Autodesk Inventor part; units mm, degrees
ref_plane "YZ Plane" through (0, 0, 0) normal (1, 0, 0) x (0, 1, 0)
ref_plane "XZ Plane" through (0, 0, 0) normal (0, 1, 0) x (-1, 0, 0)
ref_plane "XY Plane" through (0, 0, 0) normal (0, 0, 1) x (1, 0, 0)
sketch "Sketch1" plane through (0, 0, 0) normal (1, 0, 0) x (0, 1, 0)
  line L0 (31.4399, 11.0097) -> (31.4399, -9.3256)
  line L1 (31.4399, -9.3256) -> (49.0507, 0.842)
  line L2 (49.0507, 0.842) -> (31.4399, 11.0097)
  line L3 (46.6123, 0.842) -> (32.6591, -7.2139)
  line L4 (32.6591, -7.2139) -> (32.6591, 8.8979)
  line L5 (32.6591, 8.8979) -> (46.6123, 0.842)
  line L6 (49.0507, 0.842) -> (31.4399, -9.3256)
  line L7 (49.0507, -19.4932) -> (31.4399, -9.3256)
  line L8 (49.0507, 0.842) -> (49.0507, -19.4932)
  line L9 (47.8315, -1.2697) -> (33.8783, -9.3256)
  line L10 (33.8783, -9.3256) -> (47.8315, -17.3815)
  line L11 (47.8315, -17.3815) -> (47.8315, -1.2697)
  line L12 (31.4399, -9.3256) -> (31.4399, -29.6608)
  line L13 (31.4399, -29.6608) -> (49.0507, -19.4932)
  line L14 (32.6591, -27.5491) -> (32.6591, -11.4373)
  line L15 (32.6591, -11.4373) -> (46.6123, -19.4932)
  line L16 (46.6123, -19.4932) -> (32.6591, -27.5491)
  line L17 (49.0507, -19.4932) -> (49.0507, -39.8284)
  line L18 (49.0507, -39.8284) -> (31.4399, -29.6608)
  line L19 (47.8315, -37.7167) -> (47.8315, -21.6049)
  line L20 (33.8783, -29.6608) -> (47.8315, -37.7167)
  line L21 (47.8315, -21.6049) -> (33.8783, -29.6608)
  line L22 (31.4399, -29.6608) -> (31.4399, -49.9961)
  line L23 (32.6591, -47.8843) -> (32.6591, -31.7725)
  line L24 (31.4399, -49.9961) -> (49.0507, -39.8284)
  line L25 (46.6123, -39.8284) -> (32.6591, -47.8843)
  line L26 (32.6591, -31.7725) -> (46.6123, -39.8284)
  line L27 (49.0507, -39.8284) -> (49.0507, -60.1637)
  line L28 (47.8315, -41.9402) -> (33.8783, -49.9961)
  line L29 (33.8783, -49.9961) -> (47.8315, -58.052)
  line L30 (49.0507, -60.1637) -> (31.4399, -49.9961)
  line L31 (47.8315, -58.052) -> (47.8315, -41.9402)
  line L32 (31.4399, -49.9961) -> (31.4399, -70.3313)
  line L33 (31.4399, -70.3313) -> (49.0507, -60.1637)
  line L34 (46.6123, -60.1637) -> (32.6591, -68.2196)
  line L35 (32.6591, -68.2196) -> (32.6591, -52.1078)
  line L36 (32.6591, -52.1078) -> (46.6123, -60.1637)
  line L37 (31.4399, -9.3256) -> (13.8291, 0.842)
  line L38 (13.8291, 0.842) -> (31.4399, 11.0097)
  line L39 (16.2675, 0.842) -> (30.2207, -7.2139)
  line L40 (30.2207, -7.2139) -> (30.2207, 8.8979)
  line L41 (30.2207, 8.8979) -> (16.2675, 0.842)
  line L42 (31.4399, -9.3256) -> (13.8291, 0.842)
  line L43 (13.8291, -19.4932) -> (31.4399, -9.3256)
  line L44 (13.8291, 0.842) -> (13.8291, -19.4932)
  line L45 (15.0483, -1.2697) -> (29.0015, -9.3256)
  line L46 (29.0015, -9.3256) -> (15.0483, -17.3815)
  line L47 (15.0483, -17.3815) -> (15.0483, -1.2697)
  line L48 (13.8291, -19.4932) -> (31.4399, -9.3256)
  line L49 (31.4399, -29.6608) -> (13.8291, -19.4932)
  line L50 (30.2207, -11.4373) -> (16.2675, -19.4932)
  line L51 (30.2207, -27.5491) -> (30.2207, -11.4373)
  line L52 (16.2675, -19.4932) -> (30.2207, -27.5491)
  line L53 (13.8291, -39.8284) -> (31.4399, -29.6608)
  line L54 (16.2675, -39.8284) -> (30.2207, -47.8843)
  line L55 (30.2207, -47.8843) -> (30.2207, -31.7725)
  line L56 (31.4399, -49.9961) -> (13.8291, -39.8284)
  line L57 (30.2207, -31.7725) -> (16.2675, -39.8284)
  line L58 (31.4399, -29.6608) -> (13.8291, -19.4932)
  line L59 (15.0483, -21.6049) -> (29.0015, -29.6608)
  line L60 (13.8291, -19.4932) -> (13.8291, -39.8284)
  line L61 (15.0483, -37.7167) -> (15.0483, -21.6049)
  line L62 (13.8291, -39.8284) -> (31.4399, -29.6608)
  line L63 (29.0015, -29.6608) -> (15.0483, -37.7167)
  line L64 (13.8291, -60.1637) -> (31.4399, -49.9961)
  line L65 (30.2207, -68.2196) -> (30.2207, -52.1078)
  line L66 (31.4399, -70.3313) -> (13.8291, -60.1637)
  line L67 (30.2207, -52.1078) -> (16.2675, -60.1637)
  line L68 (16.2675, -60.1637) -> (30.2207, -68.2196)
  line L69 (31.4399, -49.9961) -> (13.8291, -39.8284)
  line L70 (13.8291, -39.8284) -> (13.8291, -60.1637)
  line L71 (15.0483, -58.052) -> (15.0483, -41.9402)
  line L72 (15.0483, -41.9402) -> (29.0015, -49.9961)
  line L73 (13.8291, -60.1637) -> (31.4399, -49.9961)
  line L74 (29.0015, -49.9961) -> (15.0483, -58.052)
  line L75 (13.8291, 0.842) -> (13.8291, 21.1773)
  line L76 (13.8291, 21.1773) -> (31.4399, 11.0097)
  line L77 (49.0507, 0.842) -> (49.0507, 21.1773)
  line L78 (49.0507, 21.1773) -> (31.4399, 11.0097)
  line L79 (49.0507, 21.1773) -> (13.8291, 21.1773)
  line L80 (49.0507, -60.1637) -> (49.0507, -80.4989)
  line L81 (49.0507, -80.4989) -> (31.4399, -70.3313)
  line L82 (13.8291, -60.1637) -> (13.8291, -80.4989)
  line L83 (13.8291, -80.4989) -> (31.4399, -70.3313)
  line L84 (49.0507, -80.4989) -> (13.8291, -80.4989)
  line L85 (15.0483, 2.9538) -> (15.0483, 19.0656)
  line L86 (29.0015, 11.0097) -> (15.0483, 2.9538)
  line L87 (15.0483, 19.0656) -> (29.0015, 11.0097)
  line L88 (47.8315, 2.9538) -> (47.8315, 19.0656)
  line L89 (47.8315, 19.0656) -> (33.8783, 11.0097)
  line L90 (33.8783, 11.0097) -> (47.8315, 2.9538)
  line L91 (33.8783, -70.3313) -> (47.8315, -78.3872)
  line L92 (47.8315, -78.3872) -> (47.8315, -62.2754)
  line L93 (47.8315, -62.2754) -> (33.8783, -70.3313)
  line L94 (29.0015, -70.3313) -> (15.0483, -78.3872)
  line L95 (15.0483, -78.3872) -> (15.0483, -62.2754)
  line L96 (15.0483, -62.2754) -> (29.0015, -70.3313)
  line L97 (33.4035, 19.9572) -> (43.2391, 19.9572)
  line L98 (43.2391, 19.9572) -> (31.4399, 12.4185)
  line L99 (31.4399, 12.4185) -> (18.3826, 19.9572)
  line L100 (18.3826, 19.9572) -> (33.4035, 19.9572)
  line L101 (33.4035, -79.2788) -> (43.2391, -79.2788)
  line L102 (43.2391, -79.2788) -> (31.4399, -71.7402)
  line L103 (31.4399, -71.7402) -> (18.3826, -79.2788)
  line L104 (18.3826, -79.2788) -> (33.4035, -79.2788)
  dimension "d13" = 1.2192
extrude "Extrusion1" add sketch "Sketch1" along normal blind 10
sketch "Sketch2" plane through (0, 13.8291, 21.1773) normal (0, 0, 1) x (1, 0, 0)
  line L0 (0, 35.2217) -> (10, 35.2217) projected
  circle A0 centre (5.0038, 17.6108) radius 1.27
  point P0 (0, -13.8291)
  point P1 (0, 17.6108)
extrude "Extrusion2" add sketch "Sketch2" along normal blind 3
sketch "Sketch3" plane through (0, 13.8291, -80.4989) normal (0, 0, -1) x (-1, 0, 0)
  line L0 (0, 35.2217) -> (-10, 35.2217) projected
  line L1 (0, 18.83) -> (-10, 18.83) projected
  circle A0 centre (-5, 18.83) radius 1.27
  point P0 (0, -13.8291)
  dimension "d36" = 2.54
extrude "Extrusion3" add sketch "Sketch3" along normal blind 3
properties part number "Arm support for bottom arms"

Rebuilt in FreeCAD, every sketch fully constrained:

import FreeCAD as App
import Part
import Sketcher
from FreeCAD import Vector
Q = App.Units.Quantity

doc = App.newDocument("Part")
body = doc.addObject("PartDesign::Body", "Body")

sketch1 = doc.addObject("Sketcher::SketchObject", "Sketch")
body.addObject(sketch1)
sketch1.AttachmentSupport = (doc.YZ_Plane, [""])
sketch1.MapMode = "FlatFace"
sketch1.addGeometry(Part.LineSegment(Vector(49.0507, 21.1773, 0), Vector(13.8291, 21.1773, 0)), False)
sketch1.addGeometry(Part.LineSegment(Vector(13.8291, 21.1773, 0), Vector(13.8291, -80.4989, 0)), False)
sketch1.addGeometry(Part.LineSegment(Vector(13.8291, -80.4989, 0), Vector(49.0507, -80.4989, 0)), False)
sketch1.addGeometry(Part.LineSegment(Vector(49.0507, -80.4989, 0), Vector(49.0507, 21.1773, 0)), False)
sketch1.addGeometry(Part.LineSegment(Vector(32.6591, 8.8979, 0), Vector(46.6123, 0.842, 0)), False)
sketch1.addGeometry(Part.LineSegment(Vector(46.6123, 0.842, 0), Vector(32.6591, -7.2139, 0)), False)
sketch1.addGeometry(Part.LineSegment(Vector(32.6591, -7.2139, 0), Vector(32.6591, 8.8979, 0)), False)
sketch1.addGeometry(Part.LineSegment(Vector(47.8315, 2.9538, 0), Vector(33.8783, 11.0097, 0)), False)
sketch1.addGeometry(Part.LineSegment(Vector(33.8783, 11.0097, 0), Vector(47.8315, 19.0656, 0)), False)
sketch1.addGeometry(Part.LineSegment(Vector(47.8315, 19.0656, 0), Vector(47.8315, 2.9538, 0)), False)
sketch1.addGeometry(Part.LineSegment(Vector(47.8315, -1.2697, 0), Vector(47.8315, -17.3815, 0)), False)
sketch1.addGeometry(Part.LineSegment(Vector(47.8315, -17.3815, 0), Vector(33.8783, -9.3256, 0)), False)
sketch1.addGeometry(Part.LineSegment(Vector(33.8783, -9.3256, 0), Vector(47.8315, -1.2697, 0)), False)
sketch1.addGeometry(Part.LineSegment(Vector(16.2675, 0.842, 0), Vector(30.2207, 8.8979, 0)), False)
sketch1.addGeometry(Part.LineSegment(Vector(30.2207, 8.8979, 0), Vector(30.2207, -7.2139, 0)), False)
sketch1.addGeometry(Part.LineSegment(Vector(30.2207, -7.2139, 0), Vector(16.2675, 0.842, 0)), False)
sketch1.addGeometry(Part.LineSegment(Vector(43.2391, 19.9572, 0), Vector(31.4399, 12.4185, 0)), False)
sketch1.addGeometry(Part.LineSegment(Vector(31.4399, 12.4185, 0), Vector(18.3826, 19.9572, 0)), False)
sketch1.addGeometry(Part.LineSegment(Vector(18.3826, 19.9572, 0), Vector(43.2391, 19.9572, 0)), False)
sketch1.addGeometry(Part.LineSegment(Vector(32.6591, -27.5491, 0), Vector(32.6591, -11.4373, 0)), False)
sketch1.addGeometry(Part.LineSegment(Vector(32.6591, -11.4373, 0), Vector(46.6123, -19.4932, 0)), False)
sketch1.addGeometry(Part.LineSegment(Vector(46.6123, -19.4932, 0), Vector(32.6591, -27.5491, 0)), False)
sketch1.addGeometry(Part.LineSegment(Vector(15.0483, -1.2697, 0), Vector(29.0015, -9.3256, 0)), False)
sketch1.addGeometry(Part.LineSegment(Vector(29.0015, -9.3256, 0), Vector(15.0483, -17.3815, 0)), False)
sketch1.addGeometry(Part.LineSegment(Vector(15.0483, -17.3815, 0), Vector(15.0483, -1.2697, 0)), False)
sketch1.addGeometry(Part.LineSegment(Vector(15.0483, 2.9538, 0), Vector(15.0483, 19.0656, 0)), False)
sketch1.addGeometry(Part.LineSegment(Vector(15.0483, 19.0656, 0), Vector(29.0015, 11.0097, 0)), False)
sketch1.addGeometry(Part.LineSegment(Vector(29.0015, 11.0097, 0), Vector(15.0483, 2.9538, 0)), False)
sketch1.addGeometry(Part.LineSegment(Vector(47.8315, -37.7167, 0), Vector(33.8783, -29.6608, 0)), False)
sketch1.addGeometry(Part.LineSegment(Vector(33.8783, -29.6608, 0), Vector(47.8315, -21.6049, 0)), False)
sketch1.addGeometry(Part.LineSegment(Vector(47.8315, -21.6049, 0), Vector(47.8315, -37.7167, 0)), False)
sketch1.addGeometry(Part.LineSegment(Vector(30.2207, -11.4373, 0), Vector(30.2207, -27.5491, 0)), False)
sketch1.addGeometry(Part.LineSegment(Vector(30.2207, -27.5491, 0), Vector(16.2675, -19.4932, 0)), False)
sketch1.addGeometry(Part.LineSegment(Vector(16.2675, -19.4932, 0), Vector(30.2207, -11.4373, 0)), False)
sketch1.addGeometry(Part.LineSegment(Vector(32.6591, -47.8843, 0), Vector(32.6591, -31.7725, 0)), False)
sketch1.addGeometry(Part.LineSegment(Vector(32.6591, -31.7725, 0), Vector(46.6123, -39.8284, 0)), False)
sketch1.addGeometry(Part.LineSegment(Vector(46.6123, -39.8284, 0), Vector(32.6591, -47.8843, 0)), False)
sketch1.addGeometry(Part.LineSegment(Vector(15.0483, -21.6049, 0), Vector(29.0015, -29.6608, 0)), False)
sketch1.addGeometry(Part.LineSegment(Vector(29.0015, -29.6608, 0), Vector(15.0483, -37.7167, 0)), False)
sketch1.addGeometry(Part.LineSegment(Vector(15.0483, -37.7167, 0), Vector(15.0483, -21.6049, 0)), False)
sketch1.addGeometry(Part.LineSegment(Vector(47.8315, -41.9402, 0), Vector(47.8315, -58.052, 0)), False)
sketch1.addGeometry(Part.LineSegment(Vector(47.8315, -58.052, 0), Vector(33.8783, -49.9961, 0)), False)
sketch1.addGeometry(Part.LineSegment(Vector(33.8783, -49.9961, 0), Vector(47.8315, -41.9402, 0)), False)
sketch1.addGeometry(Part.LineSegment(Vector(16.2675, -39.8284, 0), Vector(30.2207, -31.7725, 0)), False)
sketch1.addGeometry(Part.LineSegment(Vector(30.2207, -31.7725, 0), Vector(30.2207, -47.8843, 0)), False)
sketch1.addGeometry(Part.LineSegment(Vector(30.2207, -47.8843, 0), Vector(16.2675, -39.8284, 0)), False)
sketch1.addGeometry(Part.LineSegment(Vector(46.6123, -60.1637, 0), Vector(32.6591, -68.2196, 0)), False)
sketch1.addGeometry(Part.LineSegment(Vector(32.6591, -68.2196, 0), Vector(32.6591, -52.1078, 0)), False)
sketch1.addGeometry(Part.LineSegment(Vector(32.6591, -52.1078, 0), Vector(46.6123, -60.1637, 0)), False)
sketch1.addGeometry(Part.LineSegment(Vector(15.0483, -58.052, 0), Vector(15.0483, -41.9402, 0)), False)
sketch1.addGeometry(Part.LineSegment(Vector(15.0483, -41.9402, 0), Vector(29.0015, -49.9961, 0)), False)
sketch1.addGeometry(Part.LineSegment(Vector(29.0015, -49.9961, 0), Vector(15.0483, -58.052, 0)), False)
sketch1.addGeometry(Part.LineSegment(Vector(33.8783, -70.3313, 0), Vector(47.8315, -62.2754, 0)), False)
sketch1.addGeometry(Part.LineSegment(Vector(47.8315, -62.2754, 0), Vector(47.8315, -78.3872, 0)), False)
sketch1.addGeometry(Part.LineSegment(Vector(47.8315, -78.3872, 0), Vector(33.8783, -70.3313, 0)), False)
sketch1.addGeometry(Part.LineSegment(Vector(30.2207, -68.2196, 0), Vector(16.2675, -60.1637, 0)), False)
sketch1.addGeometry(Part.LineSegment(Vector(16.2675, -60.1637, 0), Vector(30.2207, -52.1078, 0)), False)
sketch1.addGeometry(Part.LineSegment(Vector(30.2207, -52.1078, 0), Vector(30.2207, -68.2196, 0)), False)
sketch1.addGeometry(Part.LineSegment(Vector(18.3826, -79.2788, 0), Vector(31.4399, -71.7402, 0)), False)
sketch1.addGeometry(Part.LineSegment(Vector(31.4399, -71.7402, 0), Vector(43.2391, -79.2788, 0)), False)
sketch1.addGeometry(Part.LineSegment(Vector(43.2391, -79.2788, 0), Vector(18.3826, -79.2788, 0)), False)
sketch1.addGeometry(Part.LineSegment(Vector(15.0483, -78.3872, 0), Vector(15.0483, -62.2754, 0)), False)
sketch1.addGeometry(Part.LineSegment(Vector(15.0483, -62.2754, 0), Vector(29.0015, -70.3313, 0)), False)
sketch1.addGeometry(Part.LineSegment(Vector(29.0015, -70.3313, 0), Vector(15.0483, -78.3872, 0)), False)
sketch1.addConstraint(Sketcher.Constraint("Coincident", 0, 2, 1, 1))
sketch1.addConstraint(Sketcher.Constraint("Coincident", 1, 2, 2, 1))
sketch1.addConstraint(Sketcher.Constraint("Coincident", 2, 2, 3, 1))
sketch1.addConstraint(Sketcher.Constraint("Coincident", 3, 2, 0, 1))
sketch1.addConstraint(Sketcher.Constraint("Coincident", 4, 2, 5, 1))
sketch1.addConstraint(Sketcher.Constraint("Coincident", 5, 2, 6, 1))
sketch1.addConstraint(Sketcher.Constraint("Coincident", 6, 2, 4, 1))
sketch1.addConstraint(Sketcher.Constraint("Coincident", 7, 2, 8, 1))
sketch1.addConstraint(Sketcher.Constraint("Coincident", 8, 2, 9, 1))
sketch1.addConstraint(Sketcher.Constraint("Coincident", 9, 2, 7, 1))
sketch1.addConstraint(Sketcher.Constraint("Coincident", 10, 2, 11, 1))
sketch1.addConstraint(Sketcher.Constraint("Coincident", 11, 2, 12, 1))
sketch1.addConstraint(Sketcher.Constraint("Coincident", 12, 2, 10, 1))
sketch1.addConstraint(Sketcher.Constraint("Coincident", 13, 2, 14, 1))
sketch1.addConstraint(Sketcher.Constraint("Coincident", 14, 2, 15, 1))
sketch1.addConstraint(Sketcher.Constraint("Coincident", 15, 2, 13, 1))
sketch1.addConstraint(Sketcher.Constraint("Coincident", 16, 2, 17, 1))
sketch1.addConstraint(Sketcher.Constraint("Coincident", 17, 2, 18, 1))
sketch1.addConstraint(Sketcher.Constraint("Coincident", 18, 2, 16, 1))
sketch1.addConstraint(Sketcher.Constraint("Coincident", 19, 2, 20, 1))
sketch1.addConstraint(Sketcher.Constraint("Coincident", 20, 2, 21, 1))
sketch1.addConstraint(Sketcher.Constraint("Coincident", 21, 2, 19, 1))
sketch1.addConstraint(Sketcher.Constraint("Coincident", 22, 2, 23, 1))
sketch1.addConstraint(Sketcher.Constraint("Coincident", 23, 2, 24, 1))
sketch1.addConstraint(Sketcher.Constraint("Coincident", 24, 2, 22, 1))
sketch1.addConstraint(Sketcher.Constraint("Coincident", 25, 2, 26, 1))
sketch1.addConstraint(Sketcher.Constraint("Coincident", 26, 2, 27, 1))
sketch1.addConstraint(Sketcher.Constraint("Coincident", 27, 2, 25, 1))
sketch1.addConstraint(Sketcher.Constraint("Coincident", 28, 2, 29, 1))
sketch1.addConstraint(Sketcher.Constraint("Coincident", 29, 2, 30, 1))
sketch1.addConstraint(Sketcher.Constraint("Coincident", 30, 2, 28, 1))
sketch1.addConstraint(Sketcher.Constraint("Coincident", 31, 2, 32, 1))
sketch1.addConstraint(Sketcher.Constraint("Coincident", 32, 2, 33, 1))
sketch1.addConstraint(Sketcher.Constraint("Coincident", 33, 2, 31, 1))
sketch1.addConstraint(Sketcher.Constraint("Coincident", 34, 2, 35, 1))
sketch1.addConstraint(Sketcher.Constraint("Coincident", 35, 2, 36, 1))
sketch1.addConstraint(Sketcher.Constraint("Coincident", 36, 2, 34, 1))
sketch1.addConstraint(Sketcher.Constraint("Coincident", 37, 2, 38, 1))
sketch1.addConstraint(Sketcher.Constraint("Coincident", 38, 2, 39, 1))
sketch1.addConstraint(Sketcher.Constraint("Coincident", 39, 2, 37, 1))
sketch1.addConstraint(Sketcher.Constraint("Coincident", 40, 2, 41, 1))
sketch1.addConstraint(Sketcher.Constraint("Coincident", 41, 2, 42, 1))
sketch1.addConstraint(Sketcher.Constraint("Coincident", 42, 2, 40, 1))
sketch1.addConstraint(Sketcher.Constraint("Coincident", 43, 2, 44, 1))
sketch1.addConstraint(Sketcher.Constraint("Coincident", 44, 2, 45, 1))
sketch1.addConstraint(Sketcher.Constraint("Coincident", 45, 2, 43, 1))
sketch1.addConstraint(Sketcher.Constraint("Coincident", 46, 2, 47, 1))
sketch1.addConstraint(Sketcher.Constraint("Coincident", 47, 2, 48, 1))
sketch1.addConstraint(Sketcher.Constraint("Coincident", 48, 2, 46, 1))
sketch1.addConstraint(Sketcher.Constraint("Coincident", 49, 2, 50, 1))
sketch1.addConstraint(Sketcher.Constraint("Coincident", 50, 2, 51, 1))
sketch1.addConstraint(Sketcher.Constraint("Coincident", 51, 2, 49, 1))
sketch1.addConstraint(Sketcher.Constraint("Coincident", 52, 2, 53, 1))
sketch1.addConstraint(Sketcher.Constraint("Coincident", 53, 2, 54, 1))
sketch1.addConstraint(Sketcher.Constraint("Coincident", 54, 2, 52, 1))
sketch1.addConstraint(Sketcher.Constraint("Coincident", 55, 2, 56, 1))
sketch1.addConstraint(Sketcher.Constraint("Coincident", 56, 2, 57, 1))
sketch1.addConstraint(Sketcher.Constraint("Coincident", 57, 2, 55, 1))
sketch1.addConstraint(Sketcher.Constraint("Coincident", 58, 2, 59, 1))
sketch1.addConstraint(Sketcher.Constraint("Coincident", 59, 2, 60, 1))
sketch1.addConstraint(Sketcher.Constraint("Coincident", 60, 2, 58, 1))
sketch1.addConstraint(Sketcher.Constraint("Coincident", 61, 2, 62, 1))
sketch1.addConstraint(Sketcher.Constraint("Coincident", 62, 2, 63, 1))
sketch1.addConstraint(Sketcher.Constraint("Coincident", 63, 2, 61, 1))
sketch1.addConstraint(Sketcher.Constraint("Horizontal", 0))
sketch1.addConstraint(Sketcher.Constraint("Vertical", 1))
sketch1.addConstraint(Sketcher.Constraint("Horizontal", 2))
sketch1.addConstraint(Sketcher.Constraint("Vertical", 3))
sketch1.addConstraint(Sketcher.Constraint("Vertical", 6))
sketch1.addConstraint(Sketcher.Constraint("Vertical", 9))
sketch1.addConstraint(Sketcher.Constraint("Vertical", 10))
sketch1.addConstraint(Sketcher.Constraint("Vertical", 14))
sketch1.addConstraint(Sketcher.Constraint("Horizontal", 18))
sketch1.addConstraint(Sketcher.Constraint("Vertical", 19))
sketch1.addConstraint(Sketcher.Constraint("Vertical", 24))
sketch1.addConstraint(Sketcher.Constraint("Vertical", 25))
sketch1.addConstraint(Sketcher.Constraint("Vertical", 30))
sketch1.addConstraint(Sketcher.Constraint("Vertical", 31))
sketch1.addConstraint(Sketcher.Constraint("Vertical", 34))
sketch1.addConstraint(Sketcher.Constraint("Vertical", 39))
sketch1.addConstraint(Sketcher.Constraint("Vertical", 40))
sketch1.addConstraint(Sketcher.Constraint("Vertical", 44))
sketch1.addConstraint(Sketcher.Constraint("Vertical", 47))
sketch1.addConstraint(Sketcher.Constraint("Vertical", 49))
sketch1.addConstraint(Sketcher.Constraint("Vertical", 53))
sketch1.addConstraint(Sketcher.Constraint("Vertical", 57))
sketch1.addConstraint(Sketcher.Constraint("Horizontal", 60))
sketch1.addConstraint(Sketcher.Constraint("Vertical", 61))
sketch1.addConstraint(Sketcher.Constraint("Parallel", 4, 7))
sketch1.addConstraint(Sketcher.Constraint("Parallel", 5, 8))
sketch1.addConstraint(Sketcher.Constraint("Parallel", 7, 11))
sketch1.addConstraint(Sketcher.Constraint("Parallel", 8, 12))
sketch1.addConstraint(Sketcher.Constraint("Parallel", 12, 13))
sketch1.addConstraint(Sketcher.Constraint("Parallel", 11, 15))
sketch1.addConstraint(Sketcher.Constraint("Parallel", 15, 17))
sketch1.addConstraint(Sketcher.Constraint("Parallel", 17, 20))
sketch1.addConstraint(Sketcher.Constraint("Parallel", 13, 21))
sketch1.addConstraint(Sketcher.Constraint("Parallel", 20, 22))
sketch1.addConstraint(Sketcher.Constraint("Parallel", 21, 23))
sketch1.addConstraint(Sketcher.Constraint("Parallel", 22, 26))
sketch1.addConstraint(Sketcher.Constraint("Parallel", 23, 27))
sketch1.addConstraint(Sketcher.Constraint("Parallel", 26, 28))
sketch1.addConstraint(Sketcher.Constraint("Parallel", 27, 29))
sketch1.addConstraint(Sketcher.Constraint("Parallel", 28, 32))
sketch1.addConstraint(Sketcher.Constraint("Parallel", 29, 33))
sketch1.addConstraint(Sketcher.Constraint("Parallel", 32, 35))
sketch1.addConstraint(Sketcher.Constraint("Parallel", 33, 36))
sketch1.addConstraint(Sketcher.Constraint("Parallel", 35, 37))
sketch1.addConstraint(Sketcher.Constraint("Parallel", 36, 38))
sketch1.addConstraint(Sketcher.Constraint("Parallel", 37, 41))
sketch1.addConstraint(Sketcher.Constraint("Parallel", 38, 42))
sketch1.addConstraint(Sketcher.Constraint("Parallel", 42, 43))
sketch1.addConstraint(Sketcher.Constraint("Parallel", 41, 45))
sketch1.addConstraint(Sketcher.Constraint("Parallel", 43, 46))
sketch1.addConstraint(Sketcher.Constraint("Parallel", 45, 48))
sketch1.addConstraint(Sketcher.Constraint("Parallel", 48, 50))
sketch1.addConstraint(Sketcher.Constraint("Parallel", 46, 51))
sketch1.addConstraint(Sketcher.Constraint("Parallel", 51, 52))
sketch1.addConstraint(Sketcher.Constraint("Parallel", 50, 54))
sketch1.addConstraint(Sketcher.Constraint("Parallel", 54, 55))
sketch1.addConstraint(Sketcher.Constraint("Parallel", 52, 56))
sketch1.addConstraint(Sketcher.Constraint("Parallel", 56, 58))
sketch1.addConstraint(Sketcher.Constraint("Parallel", 55, 62))
sketch1.addConstraint(Sketcher.Constraint("Parallel", 58, 63))
sketch1.addConstraint(Sketcher.Constraint("Horizontal", 6, 2, 13, 2))
sketch1.addConstraint(Sketcher.Constraint("Horizontal", 5, 2, 14, 2))
sketch1.addConstraint(Sketcher.Constraint("Horizontal", 4, 2, 15, 2))
sketch1.addConstraint(Sketcher.Constraint("Horizontal", 11, 2, 22, 2))
sketch1.addConstraint(Sketcher.Constraint("Horizontal", 10, 2, 23, 2))
sketch1.addConstraint(Sketcher.Constraint("Horizontal", 8, 2, 25, 2))
sketch1.addConstraint(Sketcher.Constraint("Horizontal", 7, 2, 26, 2))
sketch1.addConstraint(Sketcher.Constraint("Horizontal", 21, 2, 31, 2))
sketch1.addConstraint(Sketcher.Constraint("Horizontal", 20, 2, 32, 2))
sketch1.addConstraint(Sketcher.Constraint("Horizontal", 28, 2, 37, 2))
sketch1.addConstraint(Sketcher.Constraint("Horizontal", 30, 2, 38, 2))
sketch1.addConstraint(Sketcher.Constraint("Horizontal", 34, 2, 43, 2))
sketch1.addConstraint(Sketcher.Constraint("Horizontal", 36, 2, 44, 2))
sketch1.addConstraint(Sketcher.Constraint("Horizontal", 42, 2, 49, 2))
sketch1.addConstraint(Sketcher.Constraint("Horizontal", 41, 2, 50, 2))
sketch1.addConstraint(Sketcher.Constraint("Horizontal", 48, 2, 55, 2))
sketch1.addConstraint(Sketcher.Constraint("Horizontal", 47, 2, 56, 2))
sketch1.addConstraint(Sketcher.Constraint("Horizontal", 52, 2, 61, 2))
sketch1.addConstraint(Sketcher.Constraint("Horizontal", 54, 2, 62, 2))
sketch1.addConstraint(Sketcher.Constraint("Vertical", 9, 2, 10, 2))
sketch1.addConstraint(Sketcher.Constraint("Vertical", 7, 2, 11, 2))
sketch1.addConstraint(Sketcher.Constraint("Vertical", 6, 2, 19, 2))
sketch1.addConstraint(Sketcher.Constraint("Vertical", 4, 2, 20, 2))
sketch1.addConstraint(Sketcher.Constraint("Vertical", 24, 2, 25, 2))
sketch1.addConstraint(Sketcher.Constraint("Vertical", 11, 2, 28, 2))
sketch1.addConstraint(Sketcher.Constraint("Vertical", 12, 2, 29, 2))
sketch1.addConstraint(Sketcher.Constraint("Vertical", 14, 2, 31, 2))
sketch1.addConstraint(Sketcher.Constraint("Vertical", 21, 2, 34, 2))
sketch1.addConstraint(Sketcher.Constraint("Vertical", 20, 2, 35, 2))
sketch1.addConstraint(Sketcher.Constraint("Vertical", 26, 2, 37, 2))
sketch1.addConstraint(Sketcher.Constraint("Vertical", 30, 2, 40, 2))
sketch1.addConstraint(Sketcher.Constraint("Vertical", 28, 2, 41, 2))
sketch1.addConstraint(Sketcher.Constraint("Vertical", 33, 2, 43, 2))
sketch1.addConstraint(Sketcher.Constraint("Vertical", 36, 2, 46, 2))
sketch1.addConstraint(Sketcher.Constraint("Vertical", 35, 2, 48, 2))
sketch1.addConstraint(Sketcher.Constraint("Vertical", 39, 2, 49, 2))
sketch1.addConstraint(Sketcher.Constraint("Vertical", 42, 2, 52, 2))
sketch1.addConstraint(Sketcher.Constraint("Vertical", 41, 2, 54, 2))
sketch1.addConstraint(Sketcher.Constraint("Vertical", 45, 2, 55, 2))
sketch1.addConstraint(Sketcher.Constraint("Vertical", 16, 2, 58, 2))
sketch1.addConstraint(Sketcher.Constraint("Vertical", 18, 2, 59, 2))
sketch1.addConstraint(Sketcher.Constraint("Vertical", 17, 2, 60, 2))
sketch1.addConstraint(Sketcher.Constraint("Vertical", 51, 2, 61, 2))
sketch1.addConstraint(Sketcher.Constraint("Equal", 6, 9))
sketch1.addConstraint(Sketcher.Constraint("Angle", 4, Q("-30 deg")))
sketch1.addConstraint(Sketcher.Constraint("DistanceY", 1, 2, 1, 1, Q("4.003 in")))
sketch1.addConstraint(Sketcher.Constraint("DistanceY", 12, 2, -1, 1, Q("0.05 in")))
sketch1.addConstraint(Sketcher.Constraint("DistanceX", 18, 1, 18, 2, Q("0.9786 in")))
sketch1.addConstraint(Sketcher.Constraint("DistanceY", 5, 2, -1, 1, Q("0.284 in")))
sketch1.addConstraint(Sketcher.Constraint("Distance", 17, Q("0.5936 in")))
sketch1.addConstraint(Sketcher.Constraint("DistanceX", 0, 2, 0, 1, 35.2216))
sketch1.addConstraint(Sketcher.Constraint("DistanceY", 6, 1, 6, 2, 16.1118))
sketch1.addConstraint(Sketcher.Constraint("DistanceX", -1, 1, 5, 2, Q("1.2858 in")))
sketch1.addConstraint(Sketcher.Constraint("DistanceX", -1, 1, 7, 2, Q("1.3338 in")))
sketch1.addConstraint(Sketcher.Constraint("DistanceY", -1, 1, 9, 2, Q("0.1163 in")))
sketch1.addConstraint(Sketcher.Constraint("DistanceX", -1, 1, 13, 2, Q("1.1898 in")))
sketch1.addConstraint(Sketcher.Constraint("DistanceX", -1, 1, 16, 2, Q("1.2378 in")))
sketch1.addConstraint(Sketcher.Constraint("DistanceY", 21, 2, -1, 1, Q("1.0846 in")))
sketch1.addConstraint(Sketcher.Constraint("DistanceX", -1, 1, 22, 2, Q("1.1418 in")))
sketch1.addConstraint(Sketcher.Constraint("DistanceY", 30, 2, -1, 1, Q("1.4849 in")))
sketch1.addConstraint(Sketcher.Constraint("DistanceY", 36, 2, -1, 1, Q("1.8852 in")))
sketch1.addConstraint(Sketcher.Constraint("DistanceY", 40, 2, -1, 1, Q("2.2855 in")))
sketch1.addConstraint(Sketcher.Constraint("DistanceY", 46, 2, -1, 1, Q("2.6858 in")))
sketch1.addConstraint(Sketcher.Constraint("DistanceY", 53, 2, -1, 1, Q("3.0861 in")))
sketch1.addConstraint(Sketcher.Constraint("DistanceX", -1, 1, 0, 2, 13.829))
sketch1.addConstraint(Sketcher.Constraint("DistanceY", -1, 1, 0, 2, 21.1773))
sketch1.addConstraint(Sketcher.Constraint("DistanceY", -1, 1, 16, 2, 12.4185))
sketch1.addConstraint(Sketcher.Constraint("DistanceY", 58, 2, -1, 1, 71.7402))
pad1 = doc.addObject("PartDesign::Pad", "Pad")
body.addObject(pad1)
pad1.Profile = sketch1
pad1.Length = Q("0.3937008 in")

sketch2 = doc.addObject("Sketcher::SketchObject", "Sketch001")
body.addObject(sketch2)
sketch2.AttachmentSupport = (doc.XY_Plane, [""])
sketch2.MapMode = "FlatFace"
sketch2.AttachmentOffset = App.Placement(Vector(0, 0, 21.1773), App.Rotation())
sketch2.addGeometry(Part.Circle(Vector(5.0038, 31.4399, 0), Vector(0, 0, 1), 1.27), False)
sketch2.addConstraint(Sketcher.Constraint("Diameter", 0, Q("0.1 in")))
sketch2.addConstraint(Sketcher.Constraint("DistanceX", -1, 1, 0, 3, Q("0.197 in")))
sketch2.addConstraint(Sketcher.Constraint("DistanceY", -1, 1, 0, 3, Q("1.2378 in")))
pad2 = doc.addObject("PartDesign::Pad", "Pad001")
body.addObject(pad2)
pad2.Profile = sketch2
pad2.Length = Q("0.1181102 in")

sketch3 = doc.addObject("Sketcher::SketchObject", "Sketch002")
body.addObject(sketch3)
sketch3.AttachmentSupport = (doc.XY_Plane, [""])
sketch3.MapMode = "FlatFace"
sketch3.AttachmentOffset = App.Placement(Vector(0, 0, -80.4989), App.Rotation())
sketch3.addGeometry(Part.Circle(Vector(5, 32.6591, 0), Vector(0, 0, 1), 1.27), False)
sketch3.addConstraint(Sketcher.Constraint("Diameter", 0, Q("0.1 in")))
sketch3.addConstraint(Sketcher.Constraint("DistanceY", -1, 1, 0, 3, Q("1.2858 in")))
sketch3.addConstraint(Sketcher.Constraint("DistanceX", -1, 1, 0, 3, 5.0))
pad3 = doc.addObject("PartDesign::Pad", "Pad002")
body.addObject(pad3)
pad3.Profile = sketch3
pad3.Length = Q("0.1181102 in")
pad3.Reversed = True

doc.recompute()
